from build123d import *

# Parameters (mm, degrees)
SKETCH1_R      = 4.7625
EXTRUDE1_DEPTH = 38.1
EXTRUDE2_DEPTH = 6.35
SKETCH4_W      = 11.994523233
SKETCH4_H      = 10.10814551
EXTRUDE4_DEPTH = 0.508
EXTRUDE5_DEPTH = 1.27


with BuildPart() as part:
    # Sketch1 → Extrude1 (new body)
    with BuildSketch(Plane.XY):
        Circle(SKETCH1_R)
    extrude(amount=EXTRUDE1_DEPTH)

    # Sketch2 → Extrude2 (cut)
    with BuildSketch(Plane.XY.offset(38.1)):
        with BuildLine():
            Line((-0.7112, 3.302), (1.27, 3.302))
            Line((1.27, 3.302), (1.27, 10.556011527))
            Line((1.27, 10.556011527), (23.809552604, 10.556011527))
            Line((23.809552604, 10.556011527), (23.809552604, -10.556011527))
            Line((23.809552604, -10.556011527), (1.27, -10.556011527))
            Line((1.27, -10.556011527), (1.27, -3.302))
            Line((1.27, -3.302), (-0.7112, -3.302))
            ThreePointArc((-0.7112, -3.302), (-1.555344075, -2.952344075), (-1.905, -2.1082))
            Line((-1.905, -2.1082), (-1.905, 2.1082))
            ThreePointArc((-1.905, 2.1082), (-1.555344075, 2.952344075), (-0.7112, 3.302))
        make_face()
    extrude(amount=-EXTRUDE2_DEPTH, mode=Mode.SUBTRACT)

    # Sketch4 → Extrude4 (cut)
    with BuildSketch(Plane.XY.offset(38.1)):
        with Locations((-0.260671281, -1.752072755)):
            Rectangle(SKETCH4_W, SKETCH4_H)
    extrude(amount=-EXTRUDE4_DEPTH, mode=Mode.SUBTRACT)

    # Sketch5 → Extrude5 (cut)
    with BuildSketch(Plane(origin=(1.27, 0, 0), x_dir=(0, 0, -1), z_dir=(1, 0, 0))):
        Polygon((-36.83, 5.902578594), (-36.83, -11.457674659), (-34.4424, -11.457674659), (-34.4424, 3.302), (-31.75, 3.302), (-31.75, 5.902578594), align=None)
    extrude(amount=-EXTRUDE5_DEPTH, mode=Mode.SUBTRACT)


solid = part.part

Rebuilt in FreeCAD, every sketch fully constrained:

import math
import FreeCAD as App
import Part
import Sketcher
Q = App.Units.Quantity


def add_polygon(sketch, points):
    """Adds a closed chain of lines whose ends are joined by coincident constraints."""
    first, n = sketch.GeometryCount, len(points)
    for a, b in zip(points, points[1:] + points[:1]):
        sketch.addGeometry(Part.LineSegment(App.Vector(*a, 0), App.Vector(*b, 0)), False)
    for i in range(n):
        sketch.addConstraint(Sketcher.Constraint("Coincident", first + i, 2, first + (i + 1) % n, 1))

doc = App.newDocument("Part")
body = doc.addObject("PartDesign::Body", "Body")

# Sketch on XY plane
sketch1 = doc.addObject("Sketcher::SketchObject", "Sketch")
body.addObject(sketch1)
sketch1.AttachmentSupport = (doc.XY_Plane, [""])
sketch1.MapMode = "FlatFace"
sketch1.addGeometry(Part.Circle(App.Vector(0, 0, 0), App.Vector(0, 0, 1), 4.8), False)
sketch1.addConstraint(Sketcher.Constraint("Coincident", 0, 3, -1, 1))
sketch1.addConstraint(Sketcher.Constraint("Diameter", 0, Q("0.375 in")))
pad1 = doc.addObject("PartDesign::Pad", "Pad")
body.addObject(pad1)
pad1.Profile = sketch1
pad1.Length = Q("1.5 in")

# Sketch on XY plane
sketch2 = doc.addObject("Sketcher::SketchObject", "Sketch001")
body.addObject(sketch2)
sketch2.AttachmentSupport = (doc.XY_Plane, [""])
sketch2.MapMode = "FlatFace"
sketch2.AttachmentOffset = App.Placement(App.Vector(0, 0, 1.5 * 25.4), App.Rotation())
sketch2.addGeometry(Part.LineSegment(App.Vector(1.3, 3.3, 0), App.Vector(-0.7, 3.3, 0)), False)
sketch2.addGeometry(Part.ArcOfCircle(Part.Circle(App.Vector(-0.7, 2.1, 0), App.Vector(0, 0, 1), 1.2), math.radians(90), math.radians(180)), False)
sketch2.addGeometry(Part.LineSegment(App.Vector(-1.9, 2.1, 0), App.Vector(-1.9, -2.1, 0)), False)
sketch2.addGeometry(Part.ArcOfCircle(Part.Circle(App.Vector(-0.7, -2.1, 0), App.Vector(0, 0, 1), 1.2), math.radians(-180), math.radians(-90)), False)
sketch2.addGeometry(Part.LineSegment(App.Vector(-0.7, -3.3, 0), App.Vector(1.3, -3.3, 0)), False)
sketch2.addGeometry(Part.LineSegment(App.Vector(1.3, -3.3, 0), App.Vector(1.3, -10.6, 0)), False)
sketch2.addGeometry(Part.LineSegment(App.Vector(1.3, -10.6, 0), App.Vector(23.8, -10.6, 0)), False)
sketch2.addGeometry(Part.LineSegment(App.Vector(23.8, -10.6, 0), App.Vector(23.8, 10.6, 0)), False)
sketch2.addGeometry(Part.LineSegment(App.Vector(23.8, 10.6, 0), App.Vector(1.3, 10.6, 0)), False)
sketch2.addGeometry(Part.LineSegment(App.Vector(1.3, 10.6, 0), App.Vector(1.3, 3.3, 0)), False)
sketch2.addConstraint(Sketcher.Constraint("Tangent", 0, 2, 1, 1))
sketch2.addConstraint(Sketcher.Constraint("Tangent", 1, 2, 2, 1))
sketch2.addConstraint(Sketcher.Constraint("Tangent", 2, 2, 3, 1))
sketch2.addConstraint(Sketcher.Constraint("Tangent", 3, 2, 4, 1))
sketch2.addConstraint(Sketcher.Constraint("Coincident", 4, 2, 5, 1))
sketch2.addConstraint(Sketcher.Constraint("Coincident", 5, 2, 6, 1))
sketch2.addConstraint(Sketcher.Constraint("Coincident", 6, 2, 7, 1))
sketch2.addConstraint(Sketcher.Constraint("Coincident", 7, 2, 8, 1))
sketch2.addConstraint(Sketcher.Constraint("Coincident", 8, 2, 9, 1))
sketch2.addConstraint(Sketcher.Constraint("Coincident", 9, 2, 0, 1))
sketch2.addConstraint(Sketcher.Constraint("Horizontal", 0))
sketch2.addConstraint(Sketcher.Constraint("Vertical", 2))
sketch2.addConstraint(Sketcher.Constraint("Horizontal", 4))
sketch2.addConstraint(Sketcher.Constraint("Vertical", 5))
sketch2.addConstraint(Sketcher.Constraint("Horizontal", 6))
sketch2.addConstraint(Sketcher.Constraint("Vertical", 7))
sketch2.addConstraint(Sketcher.Constraint("Horizontal", 8))
sketch2.addConstraint(Sketcher.Constraint("Vertical", 9))
sketch2.addConstraint(Sketcher.Constraint("Equal", 1, 3))
sketch2.addConstraint(Sketcher.Constraint("Symmetric", 5, 2, 8, 2, -1))
sketch2.addConstraint(Sketcher.Constraint("Equal", 5, 9))
sketch2.addConstraint(Sketcher.Constraint("Radius", 1, Q("0.047 in")))
sketch2.addConstraint(Sketcher.Constraint("DistanceX", 0, 2, 0, 1, Q("0.078 in")))
sketch2.addConstraint(Sketcher.Constraint("DistanceY", 2, 2, 2, 1, Q("0.166 in")))
sketch2.addConstraint(Sketcher.Constraint("DistanceX", -1, 1, 4, 2, Q("0.05 in")))
sketch2.addConstraint(Sketcher.Constraint("DistanceY", 5, 2, 5, 1, 7.254012))
sketch2.addConstraint(Sketcher.Constraint("DistanceX", 6, 1, 6, 2, 22.539553))
pocket1 = doc.addObject("PartDesign::Pocket", "Pocket")
body.addObject(pocket1)
pocket1.Profile = sketch2
pocket1.Length = Q("0.25 in")

# Sketch on XY plane
sketch3 = doc.addObject("Sketcher::SketchObject", "Sketch002")
body.addObject(sketch3)
sketch3.AttachmentSupport = (doc.XY_Plane, [""])
sketch3.MapMode = "FlatFace"
sketch3.AttachmentOffset = App.Placement(App.Vector(0, 0, 1.5 * 25.4), App.Rotation())
add_polygon(sketch3, [(-6, 3), (-6, -7), (6, -7), (6, 3)])  # lines 0-3
sketch3.addConstraint(Sketcher.Constraint("Vertical", 0))
sketch3.addConstraint(Sketcher.Constraint("Horizontal", 1))
sketch3.addConstraint(Sketcher.Constraint("Vertical", 2))
sketch3.addConstraint(Sketcher.Constraint("Horizontal", 3))
sketch3.addConstraint(Sketcher.Constraint("DistanceY", -1, 1, 2, 2, Q("0.13 in")))
sketch3.addConstraint(Sketcher.Constraint("DistanceX", 1, 1, 1, 2, 11.994523))
sketch3.addConstraint(Sketcher.Constraint("DistanceY", 0, 2, 0, 1, 10.108146))
sketch3.addConstraint(Sketcher.Constraint("DistanceX", -1, 1, 1, 2, 5.73659))
pocket2 = doc.addObject("PartDesign::Pocket", "Pocket001")
body.addObject(pocket2)
pocket2.Profile = sketch3
pocket2.Length = Q("0.02 in")

# Sketch on YZ plane
sketch4 = doc.addObject("Sketcher::SketchObject", "Sketch003")
body.addObject(sketch4)
sketch4.AttachmentSupport = (doc.YZ_Plane, [""])
sketch4.MapMode = "FlatFace"
sketch4.AttachmentOffset = App.Placement(App.Vector(0, 0, 0.05 * 25.4), App.Rotation())
add_polygon(sketch4, [(5.9, 36.8), (-11.5, 36.8), (-11.5, 34.4), (3.3, 34.4), (3.3, 31.8), (5.9, 31.8)])  # lines 0-5
sketch4.addConstraint(Sketcher.Constraint("Horizontal", 0))
sketch4.addConstraint(Sketcher.Constraint("Vertical", 1))
sketch4.addConstraint(Sketcher.Constraint("Horizontal", 2))
sketch4.addConstraint(Sketcher.Constraint("Vertical", 3))
sketch4.addConstraint(Sketcher.Constraint("Horizontal", 4))
sketch4.addConstraint(Sketcher.Constraint("Vertical", 5))
sketch4.addConstraint(Sketcher.Constraint("DistanceY", 5, 1, 5, 2, Q("0.2 in")))
sketch4.addConstraint(Sketcher.Constraint("DistanceY", 1, 2, 1, 1, Q("0.094 in")))
sketch4.addConstraint(Sketcher.Constraint("DistanceY", -1, 1, 0, 2, Q("1.45 in")))
sketch4.addConstraint(Sketcher.Constraint("DistanceX", -1, 1, 2, 2, Q("0.13 in")))
sketch4.addConstraint(Sketcher.Constraint("DistanceX", 4, 1, 4, 2, 2.600579))
sketch4.addConstraint(Sketcher.Constraint("DistanceX", 0, 2, 0, 1, 17.360253))
pocket3 = doc.addObject("PartDesign::Pocket", "Pocket002")
body.addObject(pocket3)
pocket3.Profile = sketch4
pocket3.Length = Q("0.05 in")

doc.recompute()
